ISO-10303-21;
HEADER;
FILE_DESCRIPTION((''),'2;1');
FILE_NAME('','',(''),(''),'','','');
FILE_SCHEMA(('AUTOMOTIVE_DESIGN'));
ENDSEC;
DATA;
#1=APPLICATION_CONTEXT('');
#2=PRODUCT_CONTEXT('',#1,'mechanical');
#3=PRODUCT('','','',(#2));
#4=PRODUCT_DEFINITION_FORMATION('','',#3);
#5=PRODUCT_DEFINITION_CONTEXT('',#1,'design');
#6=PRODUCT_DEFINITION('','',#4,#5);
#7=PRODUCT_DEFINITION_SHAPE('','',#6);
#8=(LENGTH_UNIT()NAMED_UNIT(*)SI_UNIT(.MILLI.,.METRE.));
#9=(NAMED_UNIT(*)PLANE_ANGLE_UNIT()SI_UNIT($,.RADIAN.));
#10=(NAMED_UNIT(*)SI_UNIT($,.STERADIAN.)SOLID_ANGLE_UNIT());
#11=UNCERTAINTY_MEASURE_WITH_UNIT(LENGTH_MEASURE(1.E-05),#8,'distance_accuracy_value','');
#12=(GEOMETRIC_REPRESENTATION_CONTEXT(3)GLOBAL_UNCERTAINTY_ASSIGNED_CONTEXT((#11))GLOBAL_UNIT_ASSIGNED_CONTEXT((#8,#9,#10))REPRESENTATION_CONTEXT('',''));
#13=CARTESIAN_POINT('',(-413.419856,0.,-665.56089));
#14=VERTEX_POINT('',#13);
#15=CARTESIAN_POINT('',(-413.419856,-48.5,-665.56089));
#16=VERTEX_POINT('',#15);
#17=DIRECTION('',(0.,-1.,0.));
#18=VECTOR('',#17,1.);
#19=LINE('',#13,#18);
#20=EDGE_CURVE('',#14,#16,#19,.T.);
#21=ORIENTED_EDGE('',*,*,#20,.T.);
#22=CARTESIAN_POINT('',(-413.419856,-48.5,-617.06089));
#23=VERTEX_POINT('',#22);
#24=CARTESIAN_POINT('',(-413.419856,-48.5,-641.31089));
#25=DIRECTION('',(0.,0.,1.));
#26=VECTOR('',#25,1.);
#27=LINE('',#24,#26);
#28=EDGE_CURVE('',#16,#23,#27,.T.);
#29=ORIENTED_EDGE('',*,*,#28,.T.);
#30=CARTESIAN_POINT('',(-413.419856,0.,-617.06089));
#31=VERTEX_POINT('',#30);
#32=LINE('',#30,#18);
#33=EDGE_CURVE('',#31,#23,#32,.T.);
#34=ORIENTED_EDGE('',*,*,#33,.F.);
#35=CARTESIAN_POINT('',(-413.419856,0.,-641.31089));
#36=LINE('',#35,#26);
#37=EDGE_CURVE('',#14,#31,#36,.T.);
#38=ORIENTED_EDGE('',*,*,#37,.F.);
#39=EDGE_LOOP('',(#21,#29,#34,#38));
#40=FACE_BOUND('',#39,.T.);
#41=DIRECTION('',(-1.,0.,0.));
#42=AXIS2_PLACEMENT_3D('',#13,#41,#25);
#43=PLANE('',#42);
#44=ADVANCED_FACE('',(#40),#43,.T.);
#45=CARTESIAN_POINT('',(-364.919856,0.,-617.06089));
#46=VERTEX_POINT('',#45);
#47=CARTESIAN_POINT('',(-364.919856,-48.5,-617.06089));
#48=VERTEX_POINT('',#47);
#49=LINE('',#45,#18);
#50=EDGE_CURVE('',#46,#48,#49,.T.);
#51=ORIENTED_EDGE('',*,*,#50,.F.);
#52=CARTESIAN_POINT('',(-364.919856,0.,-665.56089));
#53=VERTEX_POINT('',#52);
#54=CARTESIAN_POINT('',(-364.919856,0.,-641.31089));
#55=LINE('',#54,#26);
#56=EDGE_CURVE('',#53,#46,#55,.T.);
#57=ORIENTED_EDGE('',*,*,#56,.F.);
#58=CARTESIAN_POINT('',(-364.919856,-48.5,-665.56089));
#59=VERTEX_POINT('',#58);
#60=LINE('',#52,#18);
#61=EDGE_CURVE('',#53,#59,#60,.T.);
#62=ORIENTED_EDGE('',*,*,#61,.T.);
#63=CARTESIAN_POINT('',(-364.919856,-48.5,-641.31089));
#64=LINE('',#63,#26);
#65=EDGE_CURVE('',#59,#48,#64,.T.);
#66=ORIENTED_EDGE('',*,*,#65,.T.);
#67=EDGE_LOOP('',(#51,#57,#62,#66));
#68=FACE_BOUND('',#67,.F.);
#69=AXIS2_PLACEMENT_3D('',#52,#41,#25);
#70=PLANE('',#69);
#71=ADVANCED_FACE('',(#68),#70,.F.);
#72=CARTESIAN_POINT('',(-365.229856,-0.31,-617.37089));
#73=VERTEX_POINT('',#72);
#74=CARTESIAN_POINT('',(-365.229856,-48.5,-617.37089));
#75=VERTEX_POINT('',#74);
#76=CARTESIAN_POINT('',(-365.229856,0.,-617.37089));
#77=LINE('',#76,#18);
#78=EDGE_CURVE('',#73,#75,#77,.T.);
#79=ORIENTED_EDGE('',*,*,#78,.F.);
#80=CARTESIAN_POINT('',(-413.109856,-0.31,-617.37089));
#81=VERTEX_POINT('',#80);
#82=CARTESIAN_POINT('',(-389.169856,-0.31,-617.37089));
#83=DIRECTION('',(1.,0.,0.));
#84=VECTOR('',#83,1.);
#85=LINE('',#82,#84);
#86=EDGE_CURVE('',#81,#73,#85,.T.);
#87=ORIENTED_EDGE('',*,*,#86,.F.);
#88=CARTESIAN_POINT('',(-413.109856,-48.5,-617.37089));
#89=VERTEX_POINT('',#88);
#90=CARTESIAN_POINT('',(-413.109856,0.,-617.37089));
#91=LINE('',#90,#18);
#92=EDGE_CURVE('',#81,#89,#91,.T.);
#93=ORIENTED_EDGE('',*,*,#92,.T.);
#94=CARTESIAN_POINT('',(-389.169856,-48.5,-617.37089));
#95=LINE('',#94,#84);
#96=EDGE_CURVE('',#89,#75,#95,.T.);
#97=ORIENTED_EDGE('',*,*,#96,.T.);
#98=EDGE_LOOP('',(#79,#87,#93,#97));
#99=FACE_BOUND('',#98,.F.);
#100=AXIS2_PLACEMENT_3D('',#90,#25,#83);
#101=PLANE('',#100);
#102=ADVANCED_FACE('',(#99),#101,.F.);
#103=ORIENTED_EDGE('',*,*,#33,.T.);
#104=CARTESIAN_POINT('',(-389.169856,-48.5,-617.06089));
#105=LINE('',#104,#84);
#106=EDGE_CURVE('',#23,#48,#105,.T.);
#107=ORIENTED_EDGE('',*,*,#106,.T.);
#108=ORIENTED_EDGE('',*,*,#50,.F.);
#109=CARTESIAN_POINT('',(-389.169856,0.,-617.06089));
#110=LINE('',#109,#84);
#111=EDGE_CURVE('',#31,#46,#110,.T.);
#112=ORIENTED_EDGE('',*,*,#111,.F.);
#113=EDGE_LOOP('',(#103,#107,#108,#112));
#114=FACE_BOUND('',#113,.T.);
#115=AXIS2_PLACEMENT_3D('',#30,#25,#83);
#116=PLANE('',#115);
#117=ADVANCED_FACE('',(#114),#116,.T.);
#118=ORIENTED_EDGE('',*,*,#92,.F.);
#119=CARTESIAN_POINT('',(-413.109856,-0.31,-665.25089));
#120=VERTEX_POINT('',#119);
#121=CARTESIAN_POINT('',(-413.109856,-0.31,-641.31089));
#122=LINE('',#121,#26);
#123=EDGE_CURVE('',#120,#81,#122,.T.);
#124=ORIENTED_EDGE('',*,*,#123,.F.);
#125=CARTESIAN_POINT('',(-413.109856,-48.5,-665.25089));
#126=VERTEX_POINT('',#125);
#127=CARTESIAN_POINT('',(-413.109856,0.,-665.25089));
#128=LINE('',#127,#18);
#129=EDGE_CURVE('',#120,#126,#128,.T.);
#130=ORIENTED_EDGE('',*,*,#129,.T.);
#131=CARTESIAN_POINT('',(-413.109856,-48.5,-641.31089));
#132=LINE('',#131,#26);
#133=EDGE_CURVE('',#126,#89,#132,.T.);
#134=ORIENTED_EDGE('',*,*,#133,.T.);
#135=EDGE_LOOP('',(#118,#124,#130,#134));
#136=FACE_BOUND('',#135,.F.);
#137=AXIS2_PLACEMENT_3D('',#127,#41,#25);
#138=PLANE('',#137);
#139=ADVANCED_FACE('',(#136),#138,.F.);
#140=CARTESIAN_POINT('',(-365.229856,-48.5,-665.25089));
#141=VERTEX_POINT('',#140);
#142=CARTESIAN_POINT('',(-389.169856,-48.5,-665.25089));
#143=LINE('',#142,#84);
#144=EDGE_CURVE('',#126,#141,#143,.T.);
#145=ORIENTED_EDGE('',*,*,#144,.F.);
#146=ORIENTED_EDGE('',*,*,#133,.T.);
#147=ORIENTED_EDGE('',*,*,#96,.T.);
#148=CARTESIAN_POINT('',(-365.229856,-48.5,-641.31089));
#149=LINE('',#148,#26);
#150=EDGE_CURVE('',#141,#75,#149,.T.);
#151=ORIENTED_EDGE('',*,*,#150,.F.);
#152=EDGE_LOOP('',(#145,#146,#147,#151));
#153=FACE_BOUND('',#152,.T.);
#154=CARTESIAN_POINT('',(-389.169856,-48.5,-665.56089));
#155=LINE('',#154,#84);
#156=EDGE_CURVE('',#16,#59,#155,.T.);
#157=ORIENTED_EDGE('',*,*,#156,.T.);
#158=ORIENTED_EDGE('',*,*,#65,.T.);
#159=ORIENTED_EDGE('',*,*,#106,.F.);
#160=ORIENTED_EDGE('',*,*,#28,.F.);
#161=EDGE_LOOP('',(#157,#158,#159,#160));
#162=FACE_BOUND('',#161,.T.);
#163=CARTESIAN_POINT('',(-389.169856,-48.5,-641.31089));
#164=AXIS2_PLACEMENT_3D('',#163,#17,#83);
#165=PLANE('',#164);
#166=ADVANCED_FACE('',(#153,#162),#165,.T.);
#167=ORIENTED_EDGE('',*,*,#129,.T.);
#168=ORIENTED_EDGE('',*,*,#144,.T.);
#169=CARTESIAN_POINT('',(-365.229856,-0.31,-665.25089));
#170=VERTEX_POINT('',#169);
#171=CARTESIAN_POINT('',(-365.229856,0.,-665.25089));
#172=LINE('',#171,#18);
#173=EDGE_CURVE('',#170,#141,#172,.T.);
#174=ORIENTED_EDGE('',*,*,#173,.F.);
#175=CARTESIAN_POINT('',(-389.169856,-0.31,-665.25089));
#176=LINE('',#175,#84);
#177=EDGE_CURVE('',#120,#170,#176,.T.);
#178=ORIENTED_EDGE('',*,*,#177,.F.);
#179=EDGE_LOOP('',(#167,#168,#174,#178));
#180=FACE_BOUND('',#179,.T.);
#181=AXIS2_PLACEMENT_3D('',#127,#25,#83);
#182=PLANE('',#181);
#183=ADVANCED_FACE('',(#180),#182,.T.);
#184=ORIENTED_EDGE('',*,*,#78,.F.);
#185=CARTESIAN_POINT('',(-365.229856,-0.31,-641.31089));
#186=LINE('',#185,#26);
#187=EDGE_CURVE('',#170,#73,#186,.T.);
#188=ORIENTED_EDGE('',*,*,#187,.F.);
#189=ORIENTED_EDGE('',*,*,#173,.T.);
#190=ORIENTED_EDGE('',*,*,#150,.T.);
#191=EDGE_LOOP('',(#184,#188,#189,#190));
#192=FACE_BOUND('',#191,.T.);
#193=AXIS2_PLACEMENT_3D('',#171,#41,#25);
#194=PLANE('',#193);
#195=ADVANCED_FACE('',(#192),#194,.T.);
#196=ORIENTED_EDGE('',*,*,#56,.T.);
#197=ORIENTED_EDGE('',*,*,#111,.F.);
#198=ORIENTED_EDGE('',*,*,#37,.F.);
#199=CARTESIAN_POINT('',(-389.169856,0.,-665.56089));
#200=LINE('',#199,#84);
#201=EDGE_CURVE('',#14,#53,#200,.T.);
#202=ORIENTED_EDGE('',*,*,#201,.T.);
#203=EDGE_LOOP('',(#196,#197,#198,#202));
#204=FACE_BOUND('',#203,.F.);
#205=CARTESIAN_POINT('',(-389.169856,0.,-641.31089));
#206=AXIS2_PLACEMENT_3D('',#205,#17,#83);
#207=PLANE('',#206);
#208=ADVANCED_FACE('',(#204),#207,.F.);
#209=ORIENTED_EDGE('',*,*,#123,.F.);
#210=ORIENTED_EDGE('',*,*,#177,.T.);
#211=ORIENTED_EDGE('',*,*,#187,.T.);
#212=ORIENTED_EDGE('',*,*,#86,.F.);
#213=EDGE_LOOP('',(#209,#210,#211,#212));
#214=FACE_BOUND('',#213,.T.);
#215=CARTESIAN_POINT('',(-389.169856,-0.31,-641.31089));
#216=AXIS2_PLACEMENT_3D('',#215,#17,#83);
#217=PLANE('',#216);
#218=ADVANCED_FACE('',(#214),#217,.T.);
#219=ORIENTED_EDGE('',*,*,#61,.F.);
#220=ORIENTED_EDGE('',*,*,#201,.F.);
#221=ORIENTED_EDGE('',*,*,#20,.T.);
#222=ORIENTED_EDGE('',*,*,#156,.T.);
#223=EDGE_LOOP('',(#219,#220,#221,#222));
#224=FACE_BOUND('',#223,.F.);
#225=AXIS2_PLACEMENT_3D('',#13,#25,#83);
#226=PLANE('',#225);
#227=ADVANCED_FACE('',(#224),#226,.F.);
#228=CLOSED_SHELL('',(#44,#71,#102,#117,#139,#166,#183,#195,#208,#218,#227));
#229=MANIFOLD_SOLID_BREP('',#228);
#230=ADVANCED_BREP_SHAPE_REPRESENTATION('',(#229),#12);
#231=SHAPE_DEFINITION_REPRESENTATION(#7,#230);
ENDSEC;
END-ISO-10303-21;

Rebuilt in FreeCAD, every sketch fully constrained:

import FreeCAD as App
import Part
import Sketcher


def add_polygon(sketch, points):
    """Adds a closed chain of lines whose ends are joined by coincident constraints."""
    first, n = sketch.GeometryCount, len(points)
    for a, b in zip(points, points[1:] + points[:1]):
        sketch.addGeometry(Part.LineSegment(App.Vector(*a, 0), App.Vector(*b, 0)), False)
    for i in range(n):
        sketch.addConstraint(Sketcher.Constraint("Coincident", first + i, 2, first + (i + 1) % n, 1))

doc = App.newDocument("Part")
body = doc.addObject("PartDesign::Body", "Body")

# Sketch on XZ plane
sketch1 = doc.addObject("Sketcher::SketchObject", "Sketch")
body.addObject(sketch1)
sketch1.AttachmentSupport = (doc.XZ_Plane, [""])
sketch1.MapMode = "FlatFace"
add_polygon(sketch1, [(-413.109856, -617.37089), (-413.109856, -665.25089), (-365.229856, -665.25089), (-365.229856, -617.37089)])  # lines 0-3
sketch1.addConstraint(Sketcher.Constraint("Vertical", 0))
sketch1.addConstraint(Sketcher.Constraint("Horizontal", 1))
sketch1.addConstraint(Sketcher.Constraint("Vertical", 2))
sketch1.addConstraint(Sketcher.Constraint("Horizontal", 3))
sketch1.addConstraint(Sketcher.Constraint("Equal", 3, 0))
sketch1.addConstraint(Sketcher.Constraint("DistanceX", 1, 1, 1, 2, 47.88))
sketch1.addConstraint(Sketcher.Constraint("DistanceY", 0, 2, -1, 1, 665.25089))
sketch1.addConstraint(Sketcher.Constraint("DistanceX", 0, 2, -1, 1, 413.109856))
pad1 = doc.addObject("PartDesign::Pad", "Pad")
body.addObject(pad1)
pad1.Profile = sketch1
pad1.Length = 0.31

# Sketch on XZ plane
sketch2 = doc.addObject("Sketcher::SketchObject", "Sketch001")
body.addObject(sketch2)
sketch2.AttachmentSupport = (doc.XZ_Plane, [""])
sketch2.MapMode = "FlatFace"
add_polygon(sketch2, [(-413.419856, -617.06089), (-413.419856, -665.56089), (-364.919856, -665.56089), (-364.919856, -617.06089)])  # lines 0-3
add_polygon(sketch2, [(-365.229856, -665.25089), (-413.109856, -665.25089), (-413.109856, -617.37089), (-365.229856, -617.37089)])  # lines 4-7
sketch2.addConstraint(Sketcher.Constraint("Vertical", 0))
sketch2.addConstraint(Sketcher.Constraint("Horizontal", 1))
sketch2.addConstraint(Sketcher.Constraint("Vertical", 2))
sketch2.addConstraint(Sketcher.Constraint("Horizontal", 3))
sketch2.addConstraint(Sketcher.Constraint("Horizontal", 4))
sketch2.addConstraint(Sketcher.Constraint("Vertical", 5))
sketch2.addConstraint(Sketcher.Constraint("Horizontal", 6))
sketch2.addConstraint(Sketcher.Constraint("Vertical", 7))
sketch2.addConstraint(Sketcher.Constraint("Equal", 3, 0))
sketch2.addConstraint(Sketcher.Constraint("Equal", 6, 5))
sketch2.addConstraint(Sketcher.Constraint("DistanceX", 1, 1, 1, 2, 48.5))
sketch2.addConstraint(Sketcher.Constraint("DistanceX", 4, 2, 4, 1, 47.88))
sketch2.addConstraint(Sketcher.Constraint("DistanceX", 0, 2, 4, 2, 0.31))
sketch2.addConstraint(Sketcher.Constraint("DistanceY", 0, 2, 4, 2, 0.31))
sketch2.addConstraint(Sketcher.Constraint("DistanceY", 0, 2, -1, 1, 665.56089))
sketch2.addConstraint(Sketcher.Constraint("DistanceX", 0, 2, -1, 1, 413.419856))
pad2 = doc.addObject("PartDesign::Pad", "Pad001")
body.addObject(pad2)
pad2.Profile = sketch2
pad2.Length = 48.5

doc.recompute()
